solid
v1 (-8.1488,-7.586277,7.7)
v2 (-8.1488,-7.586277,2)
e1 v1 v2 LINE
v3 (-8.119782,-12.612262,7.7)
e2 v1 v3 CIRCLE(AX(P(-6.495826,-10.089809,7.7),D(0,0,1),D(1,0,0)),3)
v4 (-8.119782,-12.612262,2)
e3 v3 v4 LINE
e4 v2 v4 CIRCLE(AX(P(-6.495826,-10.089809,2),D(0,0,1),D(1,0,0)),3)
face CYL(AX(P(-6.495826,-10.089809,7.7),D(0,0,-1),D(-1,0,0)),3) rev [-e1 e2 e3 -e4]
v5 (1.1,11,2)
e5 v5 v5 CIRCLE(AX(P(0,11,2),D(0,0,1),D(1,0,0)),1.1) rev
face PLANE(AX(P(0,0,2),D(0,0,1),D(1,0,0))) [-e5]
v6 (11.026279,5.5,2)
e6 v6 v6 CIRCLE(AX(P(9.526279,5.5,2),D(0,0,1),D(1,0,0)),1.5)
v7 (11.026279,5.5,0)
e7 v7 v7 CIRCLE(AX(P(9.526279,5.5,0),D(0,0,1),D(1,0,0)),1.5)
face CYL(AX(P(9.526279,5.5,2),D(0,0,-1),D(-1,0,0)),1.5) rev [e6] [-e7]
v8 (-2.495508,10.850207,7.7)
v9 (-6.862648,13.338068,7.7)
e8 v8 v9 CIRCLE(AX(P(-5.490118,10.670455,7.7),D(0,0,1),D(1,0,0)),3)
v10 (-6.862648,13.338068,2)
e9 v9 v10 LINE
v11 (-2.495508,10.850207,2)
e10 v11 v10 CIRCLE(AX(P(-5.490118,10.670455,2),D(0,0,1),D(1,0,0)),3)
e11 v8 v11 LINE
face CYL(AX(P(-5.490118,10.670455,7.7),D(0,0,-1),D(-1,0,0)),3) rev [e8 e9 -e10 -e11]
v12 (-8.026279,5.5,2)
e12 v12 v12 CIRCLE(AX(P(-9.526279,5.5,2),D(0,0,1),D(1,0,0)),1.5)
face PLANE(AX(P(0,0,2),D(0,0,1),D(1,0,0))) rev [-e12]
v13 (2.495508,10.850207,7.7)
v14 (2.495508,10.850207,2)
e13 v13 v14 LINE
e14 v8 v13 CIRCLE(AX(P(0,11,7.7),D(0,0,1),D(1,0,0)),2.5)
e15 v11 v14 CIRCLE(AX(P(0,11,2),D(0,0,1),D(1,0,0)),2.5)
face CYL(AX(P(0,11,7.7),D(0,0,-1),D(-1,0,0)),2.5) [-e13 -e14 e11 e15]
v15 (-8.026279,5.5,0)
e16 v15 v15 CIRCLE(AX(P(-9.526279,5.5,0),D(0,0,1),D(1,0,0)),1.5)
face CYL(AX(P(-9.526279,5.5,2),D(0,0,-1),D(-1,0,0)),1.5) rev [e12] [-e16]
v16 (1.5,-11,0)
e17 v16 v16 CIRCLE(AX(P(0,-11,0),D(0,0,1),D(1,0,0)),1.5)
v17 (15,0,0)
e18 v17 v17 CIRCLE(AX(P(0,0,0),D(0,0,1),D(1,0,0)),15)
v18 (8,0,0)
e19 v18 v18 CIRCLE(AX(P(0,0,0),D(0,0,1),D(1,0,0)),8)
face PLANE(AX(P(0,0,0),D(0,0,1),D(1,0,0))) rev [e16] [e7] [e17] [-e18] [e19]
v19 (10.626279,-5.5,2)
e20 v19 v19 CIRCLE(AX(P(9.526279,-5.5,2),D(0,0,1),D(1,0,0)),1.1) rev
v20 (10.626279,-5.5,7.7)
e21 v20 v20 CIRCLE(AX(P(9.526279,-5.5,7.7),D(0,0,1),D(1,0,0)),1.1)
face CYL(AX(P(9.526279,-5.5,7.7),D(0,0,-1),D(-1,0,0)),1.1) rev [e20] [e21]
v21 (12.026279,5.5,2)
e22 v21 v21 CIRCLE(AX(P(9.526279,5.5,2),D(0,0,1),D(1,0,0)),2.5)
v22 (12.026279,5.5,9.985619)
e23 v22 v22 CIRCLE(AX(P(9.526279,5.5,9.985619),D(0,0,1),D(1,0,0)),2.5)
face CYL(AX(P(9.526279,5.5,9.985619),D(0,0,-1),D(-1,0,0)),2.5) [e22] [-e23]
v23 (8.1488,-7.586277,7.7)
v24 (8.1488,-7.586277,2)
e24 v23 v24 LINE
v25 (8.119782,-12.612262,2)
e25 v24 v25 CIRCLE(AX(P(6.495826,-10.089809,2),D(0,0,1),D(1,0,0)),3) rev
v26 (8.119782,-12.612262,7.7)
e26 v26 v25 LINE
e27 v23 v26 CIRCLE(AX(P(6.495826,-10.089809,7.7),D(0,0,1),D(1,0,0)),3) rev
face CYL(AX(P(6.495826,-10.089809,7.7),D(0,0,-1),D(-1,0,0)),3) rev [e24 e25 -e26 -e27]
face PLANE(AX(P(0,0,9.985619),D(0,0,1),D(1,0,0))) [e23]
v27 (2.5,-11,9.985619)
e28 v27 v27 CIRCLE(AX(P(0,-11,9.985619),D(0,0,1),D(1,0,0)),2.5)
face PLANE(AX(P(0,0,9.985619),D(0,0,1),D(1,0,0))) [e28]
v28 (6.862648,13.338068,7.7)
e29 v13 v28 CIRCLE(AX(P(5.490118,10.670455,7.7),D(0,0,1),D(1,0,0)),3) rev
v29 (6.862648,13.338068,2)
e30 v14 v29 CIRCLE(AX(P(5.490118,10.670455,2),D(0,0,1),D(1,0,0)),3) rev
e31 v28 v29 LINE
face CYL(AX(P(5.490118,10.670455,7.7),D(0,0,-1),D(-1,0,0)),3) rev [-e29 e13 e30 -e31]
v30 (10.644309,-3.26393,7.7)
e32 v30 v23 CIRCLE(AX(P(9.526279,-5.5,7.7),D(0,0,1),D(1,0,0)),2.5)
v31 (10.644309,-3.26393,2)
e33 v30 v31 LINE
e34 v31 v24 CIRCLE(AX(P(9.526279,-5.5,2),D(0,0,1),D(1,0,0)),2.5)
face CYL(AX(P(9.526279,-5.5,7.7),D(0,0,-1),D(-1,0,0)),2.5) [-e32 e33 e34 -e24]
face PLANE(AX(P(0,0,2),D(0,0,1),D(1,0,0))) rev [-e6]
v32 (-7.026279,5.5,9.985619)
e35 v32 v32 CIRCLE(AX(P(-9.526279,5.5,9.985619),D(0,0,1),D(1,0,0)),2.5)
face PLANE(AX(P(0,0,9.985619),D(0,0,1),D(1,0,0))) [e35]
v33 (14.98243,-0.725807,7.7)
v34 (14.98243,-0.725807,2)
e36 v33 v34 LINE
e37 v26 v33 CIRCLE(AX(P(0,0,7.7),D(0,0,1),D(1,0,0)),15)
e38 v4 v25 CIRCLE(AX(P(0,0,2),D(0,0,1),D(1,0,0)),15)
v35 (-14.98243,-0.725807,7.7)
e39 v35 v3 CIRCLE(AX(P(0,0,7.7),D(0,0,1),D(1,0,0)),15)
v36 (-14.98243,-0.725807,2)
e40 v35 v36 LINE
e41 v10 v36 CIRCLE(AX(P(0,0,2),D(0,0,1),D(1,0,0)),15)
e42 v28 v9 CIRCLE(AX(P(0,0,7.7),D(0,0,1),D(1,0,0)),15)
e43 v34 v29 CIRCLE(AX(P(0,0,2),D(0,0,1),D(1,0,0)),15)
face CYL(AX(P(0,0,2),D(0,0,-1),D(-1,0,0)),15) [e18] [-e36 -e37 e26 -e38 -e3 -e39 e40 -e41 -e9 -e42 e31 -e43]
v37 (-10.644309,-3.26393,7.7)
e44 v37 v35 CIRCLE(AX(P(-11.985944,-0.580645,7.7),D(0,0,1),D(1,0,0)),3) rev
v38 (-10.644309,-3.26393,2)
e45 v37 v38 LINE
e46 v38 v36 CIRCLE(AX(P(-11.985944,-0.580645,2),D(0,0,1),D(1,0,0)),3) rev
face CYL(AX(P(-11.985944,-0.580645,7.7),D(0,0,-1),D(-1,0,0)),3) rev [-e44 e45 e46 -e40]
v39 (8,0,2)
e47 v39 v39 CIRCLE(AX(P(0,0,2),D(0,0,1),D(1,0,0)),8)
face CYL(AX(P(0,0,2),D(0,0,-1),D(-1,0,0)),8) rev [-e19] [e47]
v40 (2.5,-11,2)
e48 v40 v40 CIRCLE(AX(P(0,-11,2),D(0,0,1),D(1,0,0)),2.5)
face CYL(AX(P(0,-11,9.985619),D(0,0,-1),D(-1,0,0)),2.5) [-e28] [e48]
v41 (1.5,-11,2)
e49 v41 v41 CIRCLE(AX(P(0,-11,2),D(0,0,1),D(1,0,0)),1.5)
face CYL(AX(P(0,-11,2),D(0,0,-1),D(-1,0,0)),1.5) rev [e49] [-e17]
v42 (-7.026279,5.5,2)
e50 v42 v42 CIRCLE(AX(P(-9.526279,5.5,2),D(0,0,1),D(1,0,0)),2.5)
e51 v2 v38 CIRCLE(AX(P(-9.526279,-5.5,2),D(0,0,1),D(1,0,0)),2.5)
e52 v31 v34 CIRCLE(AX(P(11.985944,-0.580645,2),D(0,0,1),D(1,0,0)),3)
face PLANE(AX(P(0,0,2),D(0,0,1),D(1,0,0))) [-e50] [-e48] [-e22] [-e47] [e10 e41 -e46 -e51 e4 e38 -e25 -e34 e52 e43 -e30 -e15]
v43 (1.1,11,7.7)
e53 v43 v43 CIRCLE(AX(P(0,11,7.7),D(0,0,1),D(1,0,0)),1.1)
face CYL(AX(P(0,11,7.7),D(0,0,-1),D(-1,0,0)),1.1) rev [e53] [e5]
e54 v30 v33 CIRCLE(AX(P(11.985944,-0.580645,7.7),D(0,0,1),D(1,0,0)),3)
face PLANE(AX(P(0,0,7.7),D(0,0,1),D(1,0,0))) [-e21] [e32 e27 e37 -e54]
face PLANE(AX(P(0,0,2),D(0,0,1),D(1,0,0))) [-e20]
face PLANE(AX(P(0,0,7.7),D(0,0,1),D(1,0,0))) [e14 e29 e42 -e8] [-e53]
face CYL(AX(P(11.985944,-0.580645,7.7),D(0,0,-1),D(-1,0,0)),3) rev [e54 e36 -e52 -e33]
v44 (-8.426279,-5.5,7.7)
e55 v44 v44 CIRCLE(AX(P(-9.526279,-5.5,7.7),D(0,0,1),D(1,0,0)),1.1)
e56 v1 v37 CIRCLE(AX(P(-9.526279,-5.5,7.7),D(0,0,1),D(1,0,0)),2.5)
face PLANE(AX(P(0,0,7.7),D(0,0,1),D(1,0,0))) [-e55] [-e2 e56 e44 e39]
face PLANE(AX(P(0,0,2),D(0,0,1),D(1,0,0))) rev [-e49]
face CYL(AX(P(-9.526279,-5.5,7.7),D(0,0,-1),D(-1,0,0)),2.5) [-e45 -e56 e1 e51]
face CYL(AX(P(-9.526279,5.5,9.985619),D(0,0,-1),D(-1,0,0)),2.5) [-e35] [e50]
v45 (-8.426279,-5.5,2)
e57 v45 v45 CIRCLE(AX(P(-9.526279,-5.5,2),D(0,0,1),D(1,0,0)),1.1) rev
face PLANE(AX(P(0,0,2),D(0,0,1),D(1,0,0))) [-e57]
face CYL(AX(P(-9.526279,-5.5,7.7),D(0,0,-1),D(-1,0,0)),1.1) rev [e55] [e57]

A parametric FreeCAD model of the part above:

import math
import FreeCAD as App
import Part
import Sketcher
from FreeCAD import Vector

doc = App.newDocument("Part")
body = doc.addObject("PartDesign::Body", "Body")

sketch1 = body.newObject("Sketcher::SketchObject", "Sketch")
sketch1.AttachmentSupport = (doc.getObject("XY_Plane"), [""])
sketch1.MapMode = "FlatFace"
sketch1.addGeometry(Part.Circle(Vector(0, 0, 0), Vector(0, 0, 1), 15), False)
sketch1.addGeometry(Part.Circle(Vector(0, -11, 0), Vector(0, 0, 1), 1.5), False)
sketch1.addGeometry(Part.Circle(Vector(-9.5, 5.5, 0), Vector(0, 0, 1), 1.5), False)
sketch1.addGeometry(Part.Circle(Vector(0, 0, 0), Vector(0, 0, 1), 8), False)
sketch1.addGeometry(Part.Circle(Vector(9.5, 5.5, 0), Vector(0, 0, 1), 1.5), False)
sketch1.addConstraint(Sketcher.Constraint("Coincident", 0, 3, -1, 1))
sketch1.addConstraint(Sketcher.Constraint("Coincident", 3, 3, -1, 1))
sketch1.addConstraint(Sketcher.Constraint("Equal", 1, 2))
sketch1.addConstraint(Sketcher.Constraint("Equal", 2, 4))
sketch1.addConstraint(Sketcher.Constraint("Symmetric", 2, 3, 4, 3, -2))
sketch1.addConstraint(Sketcher.Constraint("PointOnObject", 1, 3, -2))
sketch1.addConstraint(Sketcher.Constraint("Diameter", 0, 30.0))
sketch1.addConstraint(Sketcher.Constraint("Diameter", 1, 3.0))
sketch1.addConstraint(Sketcher.Constraint("Diameter", 3, 16.0))
sketch1.addConstraint(Sketcher.Constraint("DistanceY", 1, 3, -1, 1, 11.0))
sketch1.addConstraint(Sketcher.Constraint("DistanceY", -1, 1, 2, 3, 5.5))
sketch1.addConstraint(Sketcher.Constraint("DistanceX", 2, 3, -1, 1, 9.526279))
pad1 = body.newObject("PartDesign::Pad", "Pad")
pad1.Profile = sketch1
pad1.Length = 2

sketch2 = body.newObject("Sketcher::SketchObject", "Sketch001")
sketch2.AttachmentSupport = (doc.getObject("XY_Plane"), [""])
sketch2.MapMode = "FlatFace"
sketch2.AttachmentOffset = App.Placement(Vector(0, 0, 2), App.Rotation())
sketch2.addGeometry(Part.Circle(Vector(-9.5, 5.5, 0), Vector(0, 0, 1), 2.5), False)
sketch2.addGeometry(Part.Circle(Vector(9.5, 5.5, 0), Vector(0, 0, 1), 2.5), False)
sketch2.addGeometry(Part.Circle(Vector(0, -11, 0), Vector(0, 0, 1), 2.5), False)
sketch2.addConstraint(Sketcher.Constraint("Equal", 0, 1))
sketch2.addConstraint(Sketcher.Constraint("Equal", 1, 2))
sketch2.addConstraint(Sketcher.Constraint("Symmetric", 0, 3, 1, 3, -2))
sketch2.addConstraint(Sketcher.Constraint("PointOnObject", 2, 3, -2))
sketch2.addConstraint(Sketcher.Constraint("Diameter", 0, 5.0))
sketch2.addConstraint(Sketcher.Constraint("DistanceY", 2, 3, -1, 1, 11.0))
sketch2.addConstraint(Sketcher.Constraint("DistanceY", -1, 1, 0, 3, 5.5))
sketch2.addConstraint(Sketcher.Constraint("DistanceX", 0, 3, -1, 1, 9.526279))
pad2 = body.newObject("PartDesign::Pad", "Pad001")
pad2.Profile = sketch2
pad2.Length = 7.985619

sketch3 = body.newObject("Sketcher::SketchObject", "Sketch002")
sketch3.AttachmentSupport = (doc.getObject("XY_Plane"), [""])
sketch3.MapMode = "FlatFace"
sketch3.AttachmentOffset = App.Placement(Vector(0, 0, 2), App.Rotation())
sketch3.addGeometry(Part.ArcOfCircle(Part.Circle(Vector(-12, -0.6, 0), Vector(0, 0, 1), 3), math.radians(-177), math.radians(-63)), False)
sketch3.addGeometry(Part.ArcOfCircle(Part.Circle(Vector(0, 0, 0), Vector(0, 0, 1), 15), math.radians(-177), math.radians(-123)), False)
sketch3.addGeometry(Part.ArcOfCircle(Part.Circle(Vector(-6.5, -10.1, 0), Vector(0, 0, 1), 3), math.radians(123), math.radians(237)), False)
sketch3.addGeometry(Part.ArcOfCircle(Part.Circle(Vector(-9.5, -5.5, 0), Vector(0, 0, 1), 2.5), math.radians(-57), math.radians(117)), False)
sketch3.addGeometry(Part.Circle(Vector(-9.5, -5.5, 0), Vector(0, 0, 1), 1.1), False)
sketch3.addGeometry(Part.ArcOfCircle(Part.Circle(Vector(0, 0, 0), Vector(0, 0, 1), 15), math.radians(-57), math.radians(-3)), False)
sketch3.addGeometry(Part.ArcOfCircle(Part.Circle(Vector(12, -0.6, 0), Vector(0, 0, 1), 3), math.radians(-117), math.radians(-3)), False)
sketch3.addGeometry(Part.ArcOfCircle(Part.Circle(Vector(9.5, -5.5, 0), Vector(0, 0, 1), 2.5), math.radians(63), math.radians(237)), False)
sketch3.addGeometry(Part.ArcOfCircle(Part.Circle(Vector(6.5, -10.1, 0), Vector(0, 0, 1), 3), math.radians(-57), math.radians(57)), False)
sketch3.addGeometry(Part.Circle(Vector(9.5, -5.5, 0), Vector(0, 0, 1), 1.1), False)
sketch3.addGeometry(Part.ArcOfCircle(Part.Circle(Vector(0, 11, 0), Vector(0, 0, 1), 2.5), math.radians(-177), math.radians(-90)), False)
sketch3.addGeometry(Part.ArcOfCircle(Part.Circle(Vector(0, 11, 0), Vector(0, 0, 1), 2.5), math.radians(-90), math.radians(-3)), False)
sketch3.addGeometry(Part.ArcOfCircle(Part.Circle(Vector(5.5, 10.7, 0), Vector(0, 0, 1), 3), math.radians(63), math.radians(177)), False)
sketch3.addGeometry(Part.ArcOfCircle(Part.Circle(Vector(0, 0, 0), Vector(0, 0, 1), 15), math.radians(63), math.radians(90)), False)
sketch3.addGeometry(Part.ArcOfCircle(Part.Circle(Vector(0, 0, 0), Vector(0, 0, 1), 15), math.radians(90), math.radians(117)), False)
sketch3.addGeometry(Part.ArcOfCircle(Part.Circle(Vector(-5.5, 10.7, 0), Vector(0, 0, 1), 3), math.radians(3), math.radians(117)), False)
sketch3.addGeometry(Part.ArcOfCircle(Part.Circle(Vector(0, 11, 0), Vector(0, 0, 1), 1.1), math.radians(90), math.radians(270)), False)
sketch3.addGeometry(Part.ArcOfCircle(Part.Circle(Vector(0, 11, 0), Vector(0, 0, 1), 1.1), math.radians(0), math.radians(90)), False)
sketch3.addGeometry(Part.ArcOfCircle(Part.Circle(Vector(0, 11, 0), Vector(0, 0, 1), 1.1), math.radians(-90), math.radians(0)), False)
sketch3.addConstraint(Sketcher.Constraint("Tangent", 0, 1, 1, 1))
sketch3.addConstraint(Sketcher.Constraint("Tangent", 1, 2, 2, 2))
sketch3.addConstraint(Sketcher.Constraint("Tangent", 2, 1, 3, 1))
sketch3.addConstraint(Sketcher.Constraint("Tangent", 3, 2, 0, 2))
sketch3.addConstraint(Sketcher.Constraint("Tangent", 5, 2, 6, 2))
sketch3.addConstraint(Sketcher.Constraint("Tangent", 6, 1, 7, 1))
sketch3.addConstraint(Sketcher.Constraint("Tangent", 7, 2, 8, 2))
sketch3.addConstraint(Sketcher.Constraint("Tangent", 8, 1, 5, 1))
sketch3.addConstraint(Sketcher.Constraint("Tangent", 10, 2, 11, 1))
sketch3.addConstraint(Sketcher.Constraint("Tangent", 11, 2, 12, 2))
sketch3.addConstraint(Sketcher.Constraint("Tangent", 12, 1, 13, 1))
sketch3.addConstraint(Sketcher.Constraint("Tangent", 13, 2, 14, 1))
sketch3.addConstraint(Sketcher.Constraint("Tangent", 14, 2, 15, 2))
sketch3.addConstraint(Sketcher.Constraint("Tangent", 15, 1, 10, 1))
sketch3.addConstraint(Sketcher.Constraint("Tangent", 16, 1, 17, 2))
sketch3.addConstraint(Sketcher.Constraint("Tangent", 17, 1, 18, 2))
sketch3.addConstraint(Sketcher.Constraint("Tangent", 18, 1, 16, 2))
sketch3.addConstraint(Sketcher.Constraint("Coincident", 1, 3, -1, 1))
sketch3.addConstraint(Sketcher.Constraint("Coincident", 5, 3, -1, 1))
sketch3.addConstraint(Sketcher.Constraint("Coincident", 13, 3, -1, 1))
sketch3.addConstraint(Sketcher.Constraint("Coincident", 4, 3, 3, 3))
sketch3.addConstraint(Sketcher.Constraint("Coincident", 9, 3, 7, 3))
sketch3.addConstraint(Sketcher.Constraint("Coincident", 16, 3, 10, 3))
sketch3.addConstraint(Sketcher.Constraint("Equal", 0, 2))
sketch3.addConstraint(Sketcher.Constraint("Equal", 1, 5))
sketch3.addConstraint(Sketcher.Constraint("Equal", 2, 6))
sketch3.addConstraint(Sketcher.Constraint("Equal", 3, 7))
sketch3.addConstraint(Sketcher.Constraint("Equal", 6, 8))
sketch3.addConstraint(Sketcher.Constraint("Equal", 4, 9))
sketch3.addConstraint(Sketcher.Constraint("Equal", 7, 10))
sketch3.addConstraint(Sketcher.Constraint("Equal", 10, 11))
sketch3.addConstraint(Sketcher.Constraint("Equal", 8, 12))
sketch3.addConstraint(Sketcher.Constraint("Equal", 5, 13))
sketch3.addConstraint(Sketcher.Constraint("Equal", 13, 14))
sketch3.addConstraint(Sketcher.Constraint("Equal", 12, 15))
sketch3.addConstraint(Sketcher.Constraint("Equal", 9, 16))
sketch3.addConstraint(Sketcher.Constraint("Symmetric", 3, 3, 7, 3, -2))
sketch3.addConstraint(Sketcher.Constraint("PointOnObject", 10, 3, -2))
sketch3.addConstraint(Sketcher.Constraint("PointOnObject", 10, 2, -2))
sketch3.addConstraint(Sketcher.Constraint("PointOnObject", 13, 2, -2))
sketch3.addConstraint(Sketcher.Constraint("PointOnObject", 16, 1, -2))
sketch3.addConstraint(Sketcher.Constraint("PointOnObject", 18, 1, -2))
sketch3.addConstraint(Sketcher.Constraint("Horizontal", 18, 3, 17, 1))
sketch3.addConstraint(Sketcher.Constraint("Radius", 0, 3.0))
sketch3.addConstraint(Sketcher.Constraint("Radius", 1, 15.0))
sketch3.addConstraint(Sketcher.Constraint("Diameter", 4, 2.2))
sketch3.addConstraint(Sketcher.Constraint("Radius", 3, 2.5))
sketch3.addConstraint(Sketcher.Constraint("DistanceY", -1, 1, 10, 3, 11.0))
sketch3.addConstraint(Sketcher.Constraint("DistanceY", 3, 3, -1, 1, 5.5))
sketch3.addConstraint(Sketcher.Constraint("DistanceX", 2, 1, -1, 1, 8.1488))
pad3 = body.newObject("PartDesign::Pad", "Pad002")
pad3.Profile = sketch3
pad3.Length = 5.7

doc.recompute()
